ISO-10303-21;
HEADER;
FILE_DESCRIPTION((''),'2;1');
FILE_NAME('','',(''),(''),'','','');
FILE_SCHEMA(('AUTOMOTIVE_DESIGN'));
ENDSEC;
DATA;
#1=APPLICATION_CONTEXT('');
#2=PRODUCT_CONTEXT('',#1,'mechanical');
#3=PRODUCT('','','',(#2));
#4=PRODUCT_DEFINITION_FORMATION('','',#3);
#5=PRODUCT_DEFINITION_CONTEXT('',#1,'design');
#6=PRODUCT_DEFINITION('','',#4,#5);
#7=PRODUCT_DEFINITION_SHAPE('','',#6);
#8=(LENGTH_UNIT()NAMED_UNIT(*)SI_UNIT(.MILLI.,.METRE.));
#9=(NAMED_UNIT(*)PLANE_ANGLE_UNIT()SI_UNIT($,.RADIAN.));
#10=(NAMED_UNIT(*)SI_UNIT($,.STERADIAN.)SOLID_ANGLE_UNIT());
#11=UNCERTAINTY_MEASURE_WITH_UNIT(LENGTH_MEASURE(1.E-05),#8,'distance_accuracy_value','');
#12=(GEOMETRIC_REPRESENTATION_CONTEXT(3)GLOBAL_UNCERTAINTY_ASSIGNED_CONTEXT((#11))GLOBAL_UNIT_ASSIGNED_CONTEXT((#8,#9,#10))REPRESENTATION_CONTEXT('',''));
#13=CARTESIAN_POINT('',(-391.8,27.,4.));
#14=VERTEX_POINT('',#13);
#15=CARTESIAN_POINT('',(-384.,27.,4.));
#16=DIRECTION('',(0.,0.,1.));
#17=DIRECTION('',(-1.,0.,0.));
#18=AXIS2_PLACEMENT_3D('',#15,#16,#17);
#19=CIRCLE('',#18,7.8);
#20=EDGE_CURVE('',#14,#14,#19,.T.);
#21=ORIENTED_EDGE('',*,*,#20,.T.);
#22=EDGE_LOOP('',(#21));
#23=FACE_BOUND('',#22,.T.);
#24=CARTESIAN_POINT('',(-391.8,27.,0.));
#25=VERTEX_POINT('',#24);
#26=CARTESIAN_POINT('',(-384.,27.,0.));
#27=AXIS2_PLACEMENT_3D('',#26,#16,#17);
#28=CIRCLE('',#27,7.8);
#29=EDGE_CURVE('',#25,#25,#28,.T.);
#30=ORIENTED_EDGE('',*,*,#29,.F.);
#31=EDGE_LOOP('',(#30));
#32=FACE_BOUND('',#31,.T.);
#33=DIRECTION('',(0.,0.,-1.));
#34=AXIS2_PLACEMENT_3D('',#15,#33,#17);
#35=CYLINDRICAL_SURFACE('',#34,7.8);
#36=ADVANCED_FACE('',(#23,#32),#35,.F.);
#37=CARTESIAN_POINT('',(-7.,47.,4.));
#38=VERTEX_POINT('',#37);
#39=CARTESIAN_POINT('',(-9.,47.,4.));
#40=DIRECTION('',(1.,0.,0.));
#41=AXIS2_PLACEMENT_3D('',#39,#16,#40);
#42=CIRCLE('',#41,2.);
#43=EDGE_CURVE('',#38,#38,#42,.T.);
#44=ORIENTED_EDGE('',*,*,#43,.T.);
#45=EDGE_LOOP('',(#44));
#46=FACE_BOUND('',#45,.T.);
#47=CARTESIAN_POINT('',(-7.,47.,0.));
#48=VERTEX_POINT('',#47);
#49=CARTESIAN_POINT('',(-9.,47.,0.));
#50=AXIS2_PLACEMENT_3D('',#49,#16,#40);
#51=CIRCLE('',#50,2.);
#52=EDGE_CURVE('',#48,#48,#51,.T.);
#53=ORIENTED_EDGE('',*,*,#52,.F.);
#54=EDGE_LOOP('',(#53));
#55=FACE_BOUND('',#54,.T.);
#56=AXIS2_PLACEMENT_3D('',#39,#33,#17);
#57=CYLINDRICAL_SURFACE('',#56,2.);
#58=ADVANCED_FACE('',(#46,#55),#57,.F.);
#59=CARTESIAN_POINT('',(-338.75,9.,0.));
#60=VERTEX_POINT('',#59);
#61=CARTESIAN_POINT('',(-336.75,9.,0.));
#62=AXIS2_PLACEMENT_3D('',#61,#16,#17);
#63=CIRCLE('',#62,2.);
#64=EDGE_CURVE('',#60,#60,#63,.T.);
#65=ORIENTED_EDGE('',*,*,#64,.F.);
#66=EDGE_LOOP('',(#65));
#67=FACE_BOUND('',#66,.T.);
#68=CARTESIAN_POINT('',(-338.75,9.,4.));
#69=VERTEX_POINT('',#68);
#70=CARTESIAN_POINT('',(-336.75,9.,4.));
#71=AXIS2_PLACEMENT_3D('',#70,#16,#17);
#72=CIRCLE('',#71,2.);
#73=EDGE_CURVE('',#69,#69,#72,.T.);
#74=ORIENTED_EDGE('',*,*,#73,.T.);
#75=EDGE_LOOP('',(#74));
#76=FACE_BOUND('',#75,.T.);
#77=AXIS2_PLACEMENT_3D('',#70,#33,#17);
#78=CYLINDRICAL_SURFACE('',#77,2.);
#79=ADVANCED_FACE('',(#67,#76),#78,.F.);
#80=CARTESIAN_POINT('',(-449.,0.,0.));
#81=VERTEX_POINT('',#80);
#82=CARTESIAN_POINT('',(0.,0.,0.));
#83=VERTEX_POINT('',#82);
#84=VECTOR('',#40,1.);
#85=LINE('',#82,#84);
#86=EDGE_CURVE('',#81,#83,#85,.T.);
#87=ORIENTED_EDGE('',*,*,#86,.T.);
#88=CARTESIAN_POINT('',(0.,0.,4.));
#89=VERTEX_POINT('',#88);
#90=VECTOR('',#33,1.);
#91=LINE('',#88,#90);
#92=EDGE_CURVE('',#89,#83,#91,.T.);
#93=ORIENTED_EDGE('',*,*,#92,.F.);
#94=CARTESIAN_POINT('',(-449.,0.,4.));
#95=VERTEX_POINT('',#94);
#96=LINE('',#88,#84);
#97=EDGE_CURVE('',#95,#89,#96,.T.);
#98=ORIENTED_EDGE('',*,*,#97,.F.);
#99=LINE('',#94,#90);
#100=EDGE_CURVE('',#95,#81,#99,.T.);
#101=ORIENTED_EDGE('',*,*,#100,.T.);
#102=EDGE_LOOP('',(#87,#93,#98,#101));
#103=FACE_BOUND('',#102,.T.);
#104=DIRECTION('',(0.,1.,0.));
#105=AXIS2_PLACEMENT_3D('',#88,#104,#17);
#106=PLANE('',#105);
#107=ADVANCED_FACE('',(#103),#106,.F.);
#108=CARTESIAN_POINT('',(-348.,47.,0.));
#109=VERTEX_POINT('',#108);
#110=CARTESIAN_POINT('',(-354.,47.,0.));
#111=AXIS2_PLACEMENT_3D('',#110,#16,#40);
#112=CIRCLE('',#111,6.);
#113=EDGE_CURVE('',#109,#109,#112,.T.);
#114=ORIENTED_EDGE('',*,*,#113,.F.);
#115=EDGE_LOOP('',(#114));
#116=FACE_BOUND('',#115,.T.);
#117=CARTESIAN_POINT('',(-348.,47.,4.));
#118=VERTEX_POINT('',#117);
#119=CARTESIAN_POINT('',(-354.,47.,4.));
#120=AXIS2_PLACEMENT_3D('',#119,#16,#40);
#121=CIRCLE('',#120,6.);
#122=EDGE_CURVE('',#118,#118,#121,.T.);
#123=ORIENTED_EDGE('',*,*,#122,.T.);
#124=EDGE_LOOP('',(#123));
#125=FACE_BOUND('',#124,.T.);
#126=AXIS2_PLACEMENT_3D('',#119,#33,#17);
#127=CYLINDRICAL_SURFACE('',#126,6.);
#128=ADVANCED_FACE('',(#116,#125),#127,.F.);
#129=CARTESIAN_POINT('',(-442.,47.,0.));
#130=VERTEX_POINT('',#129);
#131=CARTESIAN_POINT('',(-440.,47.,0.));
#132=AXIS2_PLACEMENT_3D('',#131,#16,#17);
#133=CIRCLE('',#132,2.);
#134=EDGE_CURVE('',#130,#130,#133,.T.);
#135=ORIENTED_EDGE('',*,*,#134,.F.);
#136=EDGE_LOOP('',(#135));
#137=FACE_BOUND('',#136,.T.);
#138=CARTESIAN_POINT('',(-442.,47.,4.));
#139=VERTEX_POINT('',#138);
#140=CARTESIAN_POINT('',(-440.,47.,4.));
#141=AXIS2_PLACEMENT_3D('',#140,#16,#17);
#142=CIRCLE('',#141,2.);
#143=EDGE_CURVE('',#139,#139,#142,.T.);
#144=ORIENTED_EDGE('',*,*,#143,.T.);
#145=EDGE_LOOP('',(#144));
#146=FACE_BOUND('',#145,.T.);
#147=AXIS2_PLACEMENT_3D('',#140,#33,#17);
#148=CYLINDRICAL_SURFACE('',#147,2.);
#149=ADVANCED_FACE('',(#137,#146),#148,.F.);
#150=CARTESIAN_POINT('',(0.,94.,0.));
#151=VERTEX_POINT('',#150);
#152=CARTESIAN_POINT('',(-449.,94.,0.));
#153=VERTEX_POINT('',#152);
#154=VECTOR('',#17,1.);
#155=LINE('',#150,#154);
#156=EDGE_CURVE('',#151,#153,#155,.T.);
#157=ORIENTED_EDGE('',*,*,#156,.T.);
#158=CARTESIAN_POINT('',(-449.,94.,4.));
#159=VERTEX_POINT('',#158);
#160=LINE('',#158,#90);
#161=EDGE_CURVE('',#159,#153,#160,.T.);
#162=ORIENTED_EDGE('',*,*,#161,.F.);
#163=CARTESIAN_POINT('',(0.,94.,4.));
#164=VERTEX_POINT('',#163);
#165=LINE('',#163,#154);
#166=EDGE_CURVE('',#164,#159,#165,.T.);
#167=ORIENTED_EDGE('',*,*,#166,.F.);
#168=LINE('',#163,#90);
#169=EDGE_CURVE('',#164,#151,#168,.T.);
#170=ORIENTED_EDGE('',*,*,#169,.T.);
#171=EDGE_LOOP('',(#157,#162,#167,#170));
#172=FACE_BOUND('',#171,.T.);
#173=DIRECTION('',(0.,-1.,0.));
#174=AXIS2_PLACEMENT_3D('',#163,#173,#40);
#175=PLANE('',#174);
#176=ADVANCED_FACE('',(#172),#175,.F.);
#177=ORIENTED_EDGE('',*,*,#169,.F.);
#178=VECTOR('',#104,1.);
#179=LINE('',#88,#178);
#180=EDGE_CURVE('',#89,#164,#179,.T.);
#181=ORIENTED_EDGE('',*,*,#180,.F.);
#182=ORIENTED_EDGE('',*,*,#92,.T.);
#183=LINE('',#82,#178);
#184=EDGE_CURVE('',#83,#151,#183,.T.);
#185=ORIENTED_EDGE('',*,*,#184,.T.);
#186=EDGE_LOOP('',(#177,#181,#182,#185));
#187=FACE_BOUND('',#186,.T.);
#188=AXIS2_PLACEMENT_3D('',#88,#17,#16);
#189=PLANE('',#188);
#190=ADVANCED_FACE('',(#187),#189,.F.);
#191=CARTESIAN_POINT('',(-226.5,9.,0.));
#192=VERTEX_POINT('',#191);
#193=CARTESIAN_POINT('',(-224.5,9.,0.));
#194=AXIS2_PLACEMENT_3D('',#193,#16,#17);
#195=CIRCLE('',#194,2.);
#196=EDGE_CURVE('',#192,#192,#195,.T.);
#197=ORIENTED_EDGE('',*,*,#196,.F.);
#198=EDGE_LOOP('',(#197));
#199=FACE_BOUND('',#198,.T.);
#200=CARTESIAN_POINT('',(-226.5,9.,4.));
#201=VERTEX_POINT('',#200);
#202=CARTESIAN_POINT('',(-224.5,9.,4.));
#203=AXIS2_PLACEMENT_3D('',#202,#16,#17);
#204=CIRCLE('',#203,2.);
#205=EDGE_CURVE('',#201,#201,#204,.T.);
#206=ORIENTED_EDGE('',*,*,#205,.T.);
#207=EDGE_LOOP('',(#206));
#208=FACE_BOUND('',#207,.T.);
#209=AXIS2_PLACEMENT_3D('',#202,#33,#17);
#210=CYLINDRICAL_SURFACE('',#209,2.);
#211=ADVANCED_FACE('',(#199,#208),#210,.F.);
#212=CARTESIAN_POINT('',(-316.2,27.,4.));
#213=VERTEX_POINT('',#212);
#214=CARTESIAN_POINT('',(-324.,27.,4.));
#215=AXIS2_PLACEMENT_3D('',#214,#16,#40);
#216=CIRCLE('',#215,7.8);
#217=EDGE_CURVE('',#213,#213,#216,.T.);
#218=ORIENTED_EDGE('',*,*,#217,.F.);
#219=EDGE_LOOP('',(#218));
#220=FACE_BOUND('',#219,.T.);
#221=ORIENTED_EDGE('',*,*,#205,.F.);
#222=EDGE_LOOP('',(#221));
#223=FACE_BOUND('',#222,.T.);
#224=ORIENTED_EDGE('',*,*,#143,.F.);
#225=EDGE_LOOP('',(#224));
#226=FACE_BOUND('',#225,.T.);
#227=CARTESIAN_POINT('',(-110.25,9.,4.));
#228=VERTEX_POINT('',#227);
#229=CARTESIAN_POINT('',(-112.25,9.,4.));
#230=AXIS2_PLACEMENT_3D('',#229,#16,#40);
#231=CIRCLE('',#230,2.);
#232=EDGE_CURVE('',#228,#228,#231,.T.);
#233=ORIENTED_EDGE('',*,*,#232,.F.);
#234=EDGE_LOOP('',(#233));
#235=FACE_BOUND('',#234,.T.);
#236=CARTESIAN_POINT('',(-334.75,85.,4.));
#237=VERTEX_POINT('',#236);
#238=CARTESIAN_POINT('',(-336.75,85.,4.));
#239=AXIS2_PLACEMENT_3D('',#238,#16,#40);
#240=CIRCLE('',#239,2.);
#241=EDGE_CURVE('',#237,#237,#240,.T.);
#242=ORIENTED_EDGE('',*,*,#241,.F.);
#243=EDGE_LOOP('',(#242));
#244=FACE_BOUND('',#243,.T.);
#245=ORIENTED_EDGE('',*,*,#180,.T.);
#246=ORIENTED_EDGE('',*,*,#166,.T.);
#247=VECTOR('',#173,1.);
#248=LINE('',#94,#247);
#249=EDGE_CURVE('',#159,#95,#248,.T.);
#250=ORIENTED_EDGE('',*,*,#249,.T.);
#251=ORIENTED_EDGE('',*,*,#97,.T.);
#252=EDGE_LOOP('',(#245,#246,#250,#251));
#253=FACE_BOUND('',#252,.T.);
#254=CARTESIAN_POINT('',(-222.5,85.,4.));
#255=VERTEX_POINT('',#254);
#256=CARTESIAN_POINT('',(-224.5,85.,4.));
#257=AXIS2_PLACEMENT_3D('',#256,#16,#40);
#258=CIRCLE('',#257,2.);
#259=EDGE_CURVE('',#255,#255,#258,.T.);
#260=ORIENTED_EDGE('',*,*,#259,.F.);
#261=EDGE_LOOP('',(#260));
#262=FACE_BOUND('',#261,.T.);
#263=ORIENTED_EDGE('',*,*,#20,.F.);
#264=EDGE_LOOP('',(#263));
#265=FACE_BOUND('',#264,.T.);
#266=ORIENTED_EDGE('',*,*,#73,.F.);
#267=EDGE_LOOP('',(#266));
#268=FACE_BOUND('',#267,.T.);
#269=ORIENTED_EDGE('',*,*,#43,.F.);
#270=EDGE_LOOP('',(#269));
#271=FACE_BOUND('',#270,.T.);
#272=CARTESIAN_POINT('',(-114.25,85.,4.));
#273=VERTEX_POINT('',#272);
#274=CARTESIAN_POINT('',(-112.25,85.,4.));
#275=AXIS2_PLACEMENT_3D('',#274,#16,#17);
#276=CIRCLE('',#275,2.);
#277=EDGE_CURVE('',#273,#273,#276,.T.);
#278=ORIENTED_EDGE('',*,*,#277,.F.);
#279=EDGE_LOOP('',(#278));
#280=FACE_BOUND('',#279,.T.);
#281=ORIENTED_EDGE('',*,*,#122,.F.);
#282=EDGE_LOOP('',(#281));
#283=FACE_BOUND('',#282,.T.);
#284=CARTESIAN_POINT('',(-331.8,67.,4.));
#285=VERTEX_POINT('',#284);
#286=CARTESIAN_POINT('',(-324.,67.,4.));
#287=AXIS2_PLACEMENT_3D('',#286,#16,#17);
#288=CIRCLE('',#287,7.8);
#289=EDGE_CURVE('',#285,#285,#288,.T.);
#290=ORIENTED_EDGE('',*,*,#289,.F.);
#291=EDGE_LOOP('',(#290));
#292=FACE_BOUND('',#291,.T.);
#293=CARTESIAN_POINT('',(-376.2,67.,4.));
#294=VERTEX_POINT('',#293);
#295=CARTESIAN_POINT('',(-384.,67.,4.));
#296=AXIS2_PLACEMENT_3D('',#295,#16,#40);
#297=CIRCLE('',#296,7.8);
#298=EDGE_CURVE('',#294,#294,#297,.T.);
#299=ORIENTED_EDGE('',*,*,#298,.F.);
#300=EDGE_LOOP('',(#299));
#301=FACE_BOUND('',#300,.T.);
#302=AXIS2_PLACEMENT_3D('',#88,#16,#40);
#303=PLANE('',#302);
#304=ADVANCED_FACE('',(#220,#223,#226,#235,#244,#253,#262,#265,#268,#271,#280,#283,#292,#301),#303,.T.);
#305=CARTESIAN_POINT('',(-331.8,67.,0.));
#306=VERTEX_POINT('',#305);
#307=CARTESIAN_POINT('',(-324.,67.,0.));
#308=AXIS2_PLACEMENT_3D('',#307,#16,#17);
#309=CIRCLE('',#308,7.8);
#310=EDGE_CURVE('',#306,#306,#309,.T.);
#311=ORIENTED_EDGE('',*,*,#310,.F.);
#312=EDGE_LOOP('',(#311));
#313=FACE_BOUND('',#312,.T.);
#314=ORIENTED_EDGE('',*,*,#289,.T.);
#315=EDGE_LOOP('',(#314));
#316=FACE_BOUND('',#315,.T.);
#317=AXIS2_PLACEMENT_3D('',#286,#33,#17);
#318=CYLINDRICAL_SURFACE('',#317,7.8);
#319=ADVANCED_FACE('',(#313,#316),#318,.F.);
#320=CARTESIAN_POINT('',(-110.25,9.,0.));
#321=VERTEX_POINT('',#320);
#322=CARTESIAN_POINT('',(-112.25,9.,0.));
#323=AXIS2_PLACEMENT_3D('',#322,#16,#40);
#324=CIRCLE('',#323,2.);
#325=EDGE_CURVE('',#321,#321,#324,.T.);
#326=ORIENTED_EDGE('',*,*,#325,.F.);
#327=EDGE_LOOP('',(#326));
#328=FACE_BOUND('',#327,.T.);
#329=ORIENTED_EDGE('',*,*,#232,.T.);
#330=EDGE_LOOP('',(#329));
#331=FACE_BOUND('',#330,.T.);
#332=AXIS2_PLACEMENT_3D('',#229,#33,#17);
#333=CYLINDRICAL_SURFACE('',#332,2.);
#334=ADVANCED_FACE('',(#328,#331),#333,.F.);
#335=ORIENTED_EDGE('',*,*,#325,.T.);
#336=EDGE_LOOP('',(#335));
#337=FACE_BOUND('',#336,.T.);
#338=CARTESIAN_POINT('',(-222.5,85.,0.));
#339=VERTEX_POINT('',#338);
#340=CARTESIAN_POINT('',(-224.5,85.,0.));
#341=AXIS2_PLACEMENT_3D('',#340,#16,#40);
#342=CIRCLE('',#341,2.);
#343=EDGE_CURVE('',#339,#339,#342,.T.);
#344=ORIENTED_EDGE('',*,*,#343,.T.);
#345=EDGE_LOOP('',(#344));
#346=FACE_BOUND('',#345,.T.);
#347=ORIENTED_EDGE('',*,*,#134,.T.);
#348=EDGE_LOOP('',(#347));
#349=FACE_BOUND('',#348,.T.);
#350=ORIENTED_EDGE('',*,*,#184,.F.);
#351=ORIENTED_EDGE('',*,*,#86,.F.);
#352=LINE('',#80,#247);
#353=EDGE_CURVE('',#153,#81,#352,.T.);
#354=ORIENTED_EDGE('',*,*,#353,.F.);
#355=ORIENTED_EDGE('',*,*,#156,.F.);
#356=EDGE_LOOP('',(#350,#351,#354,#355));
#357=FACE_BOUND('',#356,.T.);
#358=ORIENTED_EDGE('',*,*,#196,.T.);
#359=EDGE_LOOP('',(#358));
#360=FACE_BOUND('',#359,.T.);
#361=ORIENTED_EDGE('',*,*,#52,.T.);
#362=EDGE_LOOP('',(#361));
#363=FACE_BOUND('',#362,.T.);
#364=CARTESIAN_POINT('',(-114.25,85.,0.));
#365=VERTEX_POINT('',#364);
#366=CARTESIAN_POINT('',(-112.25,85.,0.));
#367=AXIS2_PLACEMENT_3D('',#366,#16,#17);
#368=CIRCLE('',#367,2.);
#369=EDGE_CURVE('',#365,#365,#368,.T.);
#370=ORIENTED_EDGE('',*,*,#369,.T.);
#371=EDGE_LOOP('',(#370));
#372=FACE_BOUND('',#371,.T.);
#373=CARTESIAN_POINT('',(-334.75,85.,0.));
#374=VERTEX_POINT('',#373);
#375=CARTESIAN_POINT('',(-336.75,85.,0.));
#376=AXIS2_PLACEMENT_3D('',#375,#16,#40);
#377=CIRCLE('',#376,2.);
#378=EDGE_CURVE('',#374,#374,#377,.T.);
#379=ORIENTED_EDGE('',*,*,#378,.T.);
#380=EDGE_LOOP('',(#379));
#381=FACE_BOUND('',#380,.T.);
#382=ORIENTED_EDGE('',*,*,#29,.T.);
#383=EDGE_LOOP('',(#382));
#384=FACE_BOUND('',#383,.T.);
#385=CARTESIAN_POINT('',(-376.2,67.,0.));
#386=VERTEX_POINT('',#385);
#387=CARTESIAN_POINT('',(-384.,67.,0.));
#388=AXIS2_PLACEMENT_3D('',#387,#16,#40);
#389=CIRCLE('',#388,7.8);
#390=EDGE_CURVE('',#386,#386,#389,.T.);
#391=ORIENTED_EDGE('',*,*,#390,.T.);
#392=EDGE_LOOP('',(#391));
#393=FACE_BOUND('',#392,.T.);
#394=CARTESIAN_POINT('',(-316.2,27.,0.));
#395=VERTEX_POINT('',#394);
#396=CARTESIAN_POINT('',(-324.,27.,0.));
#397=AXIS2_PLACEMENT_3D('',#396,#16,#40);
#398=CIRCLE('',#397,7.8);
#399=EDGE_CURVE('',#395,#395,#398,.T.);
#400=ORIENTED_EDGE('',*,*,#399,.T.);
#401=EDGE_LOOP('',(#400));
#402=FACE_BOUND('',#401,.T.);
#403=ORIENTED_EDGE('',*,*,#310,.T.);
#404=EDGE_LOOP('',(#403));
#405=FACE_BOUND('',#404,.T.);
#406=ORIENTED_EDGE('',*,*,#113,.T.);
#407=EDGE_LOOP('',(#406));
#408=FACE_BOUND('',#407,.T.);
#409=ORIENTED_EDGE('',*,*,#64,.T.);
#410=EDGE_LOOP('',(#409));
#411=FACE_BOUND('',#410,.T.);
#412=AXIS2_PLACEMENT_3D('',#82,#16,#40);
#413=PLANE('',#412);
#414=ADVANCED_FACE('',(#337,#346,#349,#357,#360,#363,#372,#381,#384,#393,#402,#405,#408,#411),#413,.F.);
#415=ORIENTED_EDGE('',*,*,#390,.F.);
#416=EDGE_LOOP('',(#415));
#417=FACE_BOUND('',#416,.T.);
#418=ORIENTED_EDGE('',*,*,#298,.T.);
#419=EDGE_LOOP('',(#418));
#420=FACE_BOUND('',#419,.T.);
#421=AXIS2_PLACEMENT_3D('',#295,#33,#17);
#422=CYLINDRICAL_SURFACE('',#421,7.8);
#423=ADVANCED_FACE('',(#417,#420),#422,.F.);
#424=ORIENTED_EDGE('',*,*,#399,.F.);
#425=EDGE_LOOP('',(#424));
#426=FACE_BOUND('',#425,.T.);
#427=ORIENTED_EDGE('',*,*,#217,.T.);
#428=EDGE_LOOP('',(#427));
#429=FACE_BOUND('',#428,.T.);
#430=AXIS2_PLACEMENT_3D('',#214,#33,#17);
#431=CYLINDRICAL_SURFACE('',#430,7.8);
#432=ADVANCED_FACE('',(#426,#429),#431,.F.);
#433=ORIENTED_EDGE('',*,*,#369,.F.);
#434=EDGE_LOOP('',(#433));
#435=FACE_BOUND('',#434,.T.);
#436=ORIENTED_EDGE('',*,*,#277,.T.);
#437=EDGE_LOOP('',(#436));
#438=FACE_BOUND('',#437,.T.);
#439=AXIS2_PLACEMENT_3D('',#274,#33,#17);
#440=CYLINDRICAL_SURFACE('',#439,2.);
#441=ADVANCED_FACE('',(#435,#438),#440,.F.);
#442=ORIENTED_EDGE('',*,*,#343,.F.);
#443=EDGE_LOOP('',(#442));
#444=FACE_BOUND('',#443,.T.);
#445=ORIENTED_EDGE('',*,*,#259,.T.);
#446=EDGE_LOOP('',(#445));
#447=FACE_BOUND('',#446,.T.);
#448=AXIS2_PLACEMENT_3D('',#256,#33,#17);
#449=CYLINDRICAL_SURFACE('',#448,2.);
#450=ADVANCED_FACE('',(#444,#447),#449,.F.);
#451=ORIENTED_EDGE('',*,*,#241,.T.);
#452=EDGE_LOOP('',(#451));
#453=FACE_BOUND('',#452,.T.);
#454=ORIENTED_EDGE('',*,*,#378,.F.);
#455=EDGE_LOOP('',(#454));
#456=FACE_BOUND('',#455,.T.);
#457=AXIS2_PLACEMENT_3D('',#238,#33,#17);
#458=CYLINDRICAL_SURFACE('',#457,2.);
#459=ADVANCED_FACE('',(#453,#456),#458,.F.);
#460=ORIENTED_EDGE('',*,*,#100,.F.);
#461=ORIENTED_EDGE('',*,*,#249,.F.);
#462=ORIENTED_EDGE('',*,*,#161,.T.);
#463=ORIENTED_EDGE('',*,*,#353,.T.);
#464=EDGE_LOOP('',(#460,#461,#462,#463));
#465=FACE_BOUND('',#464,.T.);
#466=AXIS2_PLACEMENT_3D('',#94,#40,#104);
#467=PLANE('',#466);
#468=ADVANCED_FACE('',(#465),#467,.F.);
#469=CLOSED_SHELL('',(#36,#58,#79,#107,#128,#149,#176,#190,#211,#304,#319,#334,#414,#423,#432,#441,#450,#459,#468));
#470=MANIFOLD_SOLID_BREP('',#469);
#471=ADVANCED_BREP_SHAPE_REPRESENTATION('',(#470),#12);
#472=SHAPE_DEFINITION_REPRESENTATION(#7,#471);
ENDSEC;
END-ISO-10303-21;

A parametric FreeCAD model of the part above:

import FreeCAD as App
import Part
import Sketcher

V = App.Vector


def add_polygon(sketch, points):
    """Adds a closed chain of lines whose ends are joined by coincident constraints."""
    first, n = sketch.GeometryCount, len(points)
    for a, b in zip(points, points[1:] + points[:1]):
        sketch.addGeometry(Part.LineSegment(App.Vector(*a, 0), App.Vector(*b, 0)), False)
    for i in range(n):
        sketch.addConstraint(Sketcher.Constraint("Coincident", first + i, 2, first + (i + 1) % n, 1))

doc = App.newDocument("Part")
body = doc.addObject("PartDesign::Body", "Body")

# Sketch on XY plane
sketch1 = doc.addObject("Sketcher::SketchObject", "Sketch")
body.addObject(sketch1)
sketch1.AttachmentSupport = (doc.XY_Plane, [""])
sketch1.MapMode = "FlatFace"
add_polygon(sketch1, [(-449, 94), (-449, 0), (0, 0), (0, 94)])  # lines 0-3
sketch1.addGeometry(Part.Circle(V(-336.8, 9, 0), V(0, 0, 1), 2), False)  # 4
sketch1.addGeometry(Part.Circle(V(-384, 27, 0), V(0, 0, 1), 7.8), False)  # 5
sketch1.addGeometry(Part.Circle(V(-324, 27, 0), V(0, 0, 1), 7.8), False)  # 6
sketch1.addGeometry(Part.Circle(V(-224.5, 9, 0), V(0, 0, 1), 2), False)  # 7
sketch1.addGeometry(Part.Circle(V(-112.2, 9, 0), V(0, 0, 1), 2), False)  # 8
sketch1.addGeometry(Part.Circle(V(-440, 47, 0), V(0, 0, 1), 2), False)  # 9
sketch1.addGeometry(Part.Circle(V(-354, 47, 0), V(0, 0, 1), 6), False)  # 10
sketch1.addGeometry(Part.Circle(V(-384, 67, 0), V(0, 0, 1), 7.8), False)  # 11
sketch1.addGeometry(Part.Circle(V(-336.8, 85, 0), V(0, 0, 1), 2), False)  # 12
sketch1.addGeometry(Part.Circle(V(-324, 67, 0), V(0, 0, 1), 7.8), False)  # 13
sketch1.addGeometry(Part.Circle(V(-9, 47, 0), V(0, 0, 1), 2), False)  # 14
sketch1.addGeometry(Part.Circle(V(-224.5, 85, 0), V(0, 0, 1), 2), False)  # 15
sketch1.addGeometry(Part.Circle(V(-112.2, 85, 0), V(0, 0, 1), 2), False)  # 16
sketch1.addConstraint([
    Sketcher.Constraint("Vertical", 0),
    Sketcher.Constraint("Horizontal", 1),
    Sketcher.Constraint("Vertical", 2),
    Sketcher.Constraint("Horizontal", 3),
    Sketcher.Constraint("Coincident", 1, 2, -1, 1),
    Sketcher.Constraint("Equal", 5, 6),
    Sketcher.Constraint("Equal", 4, 7),
    Sketcher.Constraint("Equal", 7, 8),
    Sketcher.Constraint("Equal", 8, 9),
    Sketcher.Constraint("Equal", 6, 11),
    Sketcher.Constraint("Equal", 9, 12),
    Sketcher.Constraint("Equal", 11, 13),
    Sketcher.Constraint("Equal", 12, 14),
    Sketcher.Constraint("Equal", 14, 15),
    Sketcher.Constraint("Equal", 15, 16),
    Sketcher.Constraint("Horizontal", 5, 3, 6, 3),
    Sketcher.Constraint("Horizontal", 4, 3, 7, 3),
    Sketcher.Constraint("Horizontal", 7, 3, 8, 3),
    Sketcher.Constraint("Horizontal", 9, 3, 10, 3),
    Sketcher.Constraint("Horizontal", 11, 3, 13, 3),
    Sketcher.Constraint("Horizontal", 10, 3, 14, 3),
    Sketcher.Constraint("Horizontal", 12, 3, 15, 3),
    Sketcher.Constraint("Horizontal", 15, 3, 16, 3),
    Sketcher.Constraint("Vertical", 5, 3, 11, 3),
    Sketcher.Constraint("Vertical", 4, 3, 12, 3),
    Sketcher.Constraint("Vertical", 6, 3, 13, 3),
    Sketcher.Constraint("Vertical", 7, 3, 15, 3),
    Sketcher.Constraint("Vertical", 8, 3, 16, 3),
    Sketcher.Constraint("Diameter", 4, 4.0),
    Sketcher.Constraint("Diameter", 10, 12.0),
    Sketcher.Constraint("Diameter", 5, 15.6),
    Sketcher.Constraint("DistanceX", 1, 1, 1, 2, 449.0),
    Sketcher.Constraint("DistanceY", 0, 2, 0, 1, 94.0),
    Sketcher.Constraint("DistanceY", -1, 1, 4, 3, 9.0),
    Sketcher.Constraint("DistanceX", 5, 3, -1, 1, 384.0),
    Sketcher.Constraint("DistanceY", -1, 1, 5, 3, 27.0),
    Sketcher.Constraint("DistanceX", 6, 3, -1, 1, 324.0),
    Sketcher.Constraint("DistanceX", 9, 3, -1, 1, 440.0),
    Sketcher.Constraint("DistanceY", -1, 1, 9, 3, 47.0),
    Sketcher.Constraint("DistanceX", 10, 3, -1, 1, 354.0),
    Sketcher.Constraint("DistanceY", -1, 1, 11, 3, 67.0),
    Sketcher.Constraint("DistanceY", -1, 1, 12, 3, 85.0),
    Sketcher.Constraint("DistanceX", 14, 3, -1, 1, 9.0),
    Sketcher.Constraint("DistanceX", 7, 3, -1, 1, 224.5),
    Sketcher.Constraint("DistanceX", 4, 3, 8, 3, 224.5),
    Sketcher.Constraint("DistanceX", 4, 3, -1, 1, 336.75),
])
pad1 = doc.addObject("PartDesign::Pad", "Pad")
body.addObject(pad1)
pad1.Profile = sketch1
pad1.Length = 4

doc.recompute()
